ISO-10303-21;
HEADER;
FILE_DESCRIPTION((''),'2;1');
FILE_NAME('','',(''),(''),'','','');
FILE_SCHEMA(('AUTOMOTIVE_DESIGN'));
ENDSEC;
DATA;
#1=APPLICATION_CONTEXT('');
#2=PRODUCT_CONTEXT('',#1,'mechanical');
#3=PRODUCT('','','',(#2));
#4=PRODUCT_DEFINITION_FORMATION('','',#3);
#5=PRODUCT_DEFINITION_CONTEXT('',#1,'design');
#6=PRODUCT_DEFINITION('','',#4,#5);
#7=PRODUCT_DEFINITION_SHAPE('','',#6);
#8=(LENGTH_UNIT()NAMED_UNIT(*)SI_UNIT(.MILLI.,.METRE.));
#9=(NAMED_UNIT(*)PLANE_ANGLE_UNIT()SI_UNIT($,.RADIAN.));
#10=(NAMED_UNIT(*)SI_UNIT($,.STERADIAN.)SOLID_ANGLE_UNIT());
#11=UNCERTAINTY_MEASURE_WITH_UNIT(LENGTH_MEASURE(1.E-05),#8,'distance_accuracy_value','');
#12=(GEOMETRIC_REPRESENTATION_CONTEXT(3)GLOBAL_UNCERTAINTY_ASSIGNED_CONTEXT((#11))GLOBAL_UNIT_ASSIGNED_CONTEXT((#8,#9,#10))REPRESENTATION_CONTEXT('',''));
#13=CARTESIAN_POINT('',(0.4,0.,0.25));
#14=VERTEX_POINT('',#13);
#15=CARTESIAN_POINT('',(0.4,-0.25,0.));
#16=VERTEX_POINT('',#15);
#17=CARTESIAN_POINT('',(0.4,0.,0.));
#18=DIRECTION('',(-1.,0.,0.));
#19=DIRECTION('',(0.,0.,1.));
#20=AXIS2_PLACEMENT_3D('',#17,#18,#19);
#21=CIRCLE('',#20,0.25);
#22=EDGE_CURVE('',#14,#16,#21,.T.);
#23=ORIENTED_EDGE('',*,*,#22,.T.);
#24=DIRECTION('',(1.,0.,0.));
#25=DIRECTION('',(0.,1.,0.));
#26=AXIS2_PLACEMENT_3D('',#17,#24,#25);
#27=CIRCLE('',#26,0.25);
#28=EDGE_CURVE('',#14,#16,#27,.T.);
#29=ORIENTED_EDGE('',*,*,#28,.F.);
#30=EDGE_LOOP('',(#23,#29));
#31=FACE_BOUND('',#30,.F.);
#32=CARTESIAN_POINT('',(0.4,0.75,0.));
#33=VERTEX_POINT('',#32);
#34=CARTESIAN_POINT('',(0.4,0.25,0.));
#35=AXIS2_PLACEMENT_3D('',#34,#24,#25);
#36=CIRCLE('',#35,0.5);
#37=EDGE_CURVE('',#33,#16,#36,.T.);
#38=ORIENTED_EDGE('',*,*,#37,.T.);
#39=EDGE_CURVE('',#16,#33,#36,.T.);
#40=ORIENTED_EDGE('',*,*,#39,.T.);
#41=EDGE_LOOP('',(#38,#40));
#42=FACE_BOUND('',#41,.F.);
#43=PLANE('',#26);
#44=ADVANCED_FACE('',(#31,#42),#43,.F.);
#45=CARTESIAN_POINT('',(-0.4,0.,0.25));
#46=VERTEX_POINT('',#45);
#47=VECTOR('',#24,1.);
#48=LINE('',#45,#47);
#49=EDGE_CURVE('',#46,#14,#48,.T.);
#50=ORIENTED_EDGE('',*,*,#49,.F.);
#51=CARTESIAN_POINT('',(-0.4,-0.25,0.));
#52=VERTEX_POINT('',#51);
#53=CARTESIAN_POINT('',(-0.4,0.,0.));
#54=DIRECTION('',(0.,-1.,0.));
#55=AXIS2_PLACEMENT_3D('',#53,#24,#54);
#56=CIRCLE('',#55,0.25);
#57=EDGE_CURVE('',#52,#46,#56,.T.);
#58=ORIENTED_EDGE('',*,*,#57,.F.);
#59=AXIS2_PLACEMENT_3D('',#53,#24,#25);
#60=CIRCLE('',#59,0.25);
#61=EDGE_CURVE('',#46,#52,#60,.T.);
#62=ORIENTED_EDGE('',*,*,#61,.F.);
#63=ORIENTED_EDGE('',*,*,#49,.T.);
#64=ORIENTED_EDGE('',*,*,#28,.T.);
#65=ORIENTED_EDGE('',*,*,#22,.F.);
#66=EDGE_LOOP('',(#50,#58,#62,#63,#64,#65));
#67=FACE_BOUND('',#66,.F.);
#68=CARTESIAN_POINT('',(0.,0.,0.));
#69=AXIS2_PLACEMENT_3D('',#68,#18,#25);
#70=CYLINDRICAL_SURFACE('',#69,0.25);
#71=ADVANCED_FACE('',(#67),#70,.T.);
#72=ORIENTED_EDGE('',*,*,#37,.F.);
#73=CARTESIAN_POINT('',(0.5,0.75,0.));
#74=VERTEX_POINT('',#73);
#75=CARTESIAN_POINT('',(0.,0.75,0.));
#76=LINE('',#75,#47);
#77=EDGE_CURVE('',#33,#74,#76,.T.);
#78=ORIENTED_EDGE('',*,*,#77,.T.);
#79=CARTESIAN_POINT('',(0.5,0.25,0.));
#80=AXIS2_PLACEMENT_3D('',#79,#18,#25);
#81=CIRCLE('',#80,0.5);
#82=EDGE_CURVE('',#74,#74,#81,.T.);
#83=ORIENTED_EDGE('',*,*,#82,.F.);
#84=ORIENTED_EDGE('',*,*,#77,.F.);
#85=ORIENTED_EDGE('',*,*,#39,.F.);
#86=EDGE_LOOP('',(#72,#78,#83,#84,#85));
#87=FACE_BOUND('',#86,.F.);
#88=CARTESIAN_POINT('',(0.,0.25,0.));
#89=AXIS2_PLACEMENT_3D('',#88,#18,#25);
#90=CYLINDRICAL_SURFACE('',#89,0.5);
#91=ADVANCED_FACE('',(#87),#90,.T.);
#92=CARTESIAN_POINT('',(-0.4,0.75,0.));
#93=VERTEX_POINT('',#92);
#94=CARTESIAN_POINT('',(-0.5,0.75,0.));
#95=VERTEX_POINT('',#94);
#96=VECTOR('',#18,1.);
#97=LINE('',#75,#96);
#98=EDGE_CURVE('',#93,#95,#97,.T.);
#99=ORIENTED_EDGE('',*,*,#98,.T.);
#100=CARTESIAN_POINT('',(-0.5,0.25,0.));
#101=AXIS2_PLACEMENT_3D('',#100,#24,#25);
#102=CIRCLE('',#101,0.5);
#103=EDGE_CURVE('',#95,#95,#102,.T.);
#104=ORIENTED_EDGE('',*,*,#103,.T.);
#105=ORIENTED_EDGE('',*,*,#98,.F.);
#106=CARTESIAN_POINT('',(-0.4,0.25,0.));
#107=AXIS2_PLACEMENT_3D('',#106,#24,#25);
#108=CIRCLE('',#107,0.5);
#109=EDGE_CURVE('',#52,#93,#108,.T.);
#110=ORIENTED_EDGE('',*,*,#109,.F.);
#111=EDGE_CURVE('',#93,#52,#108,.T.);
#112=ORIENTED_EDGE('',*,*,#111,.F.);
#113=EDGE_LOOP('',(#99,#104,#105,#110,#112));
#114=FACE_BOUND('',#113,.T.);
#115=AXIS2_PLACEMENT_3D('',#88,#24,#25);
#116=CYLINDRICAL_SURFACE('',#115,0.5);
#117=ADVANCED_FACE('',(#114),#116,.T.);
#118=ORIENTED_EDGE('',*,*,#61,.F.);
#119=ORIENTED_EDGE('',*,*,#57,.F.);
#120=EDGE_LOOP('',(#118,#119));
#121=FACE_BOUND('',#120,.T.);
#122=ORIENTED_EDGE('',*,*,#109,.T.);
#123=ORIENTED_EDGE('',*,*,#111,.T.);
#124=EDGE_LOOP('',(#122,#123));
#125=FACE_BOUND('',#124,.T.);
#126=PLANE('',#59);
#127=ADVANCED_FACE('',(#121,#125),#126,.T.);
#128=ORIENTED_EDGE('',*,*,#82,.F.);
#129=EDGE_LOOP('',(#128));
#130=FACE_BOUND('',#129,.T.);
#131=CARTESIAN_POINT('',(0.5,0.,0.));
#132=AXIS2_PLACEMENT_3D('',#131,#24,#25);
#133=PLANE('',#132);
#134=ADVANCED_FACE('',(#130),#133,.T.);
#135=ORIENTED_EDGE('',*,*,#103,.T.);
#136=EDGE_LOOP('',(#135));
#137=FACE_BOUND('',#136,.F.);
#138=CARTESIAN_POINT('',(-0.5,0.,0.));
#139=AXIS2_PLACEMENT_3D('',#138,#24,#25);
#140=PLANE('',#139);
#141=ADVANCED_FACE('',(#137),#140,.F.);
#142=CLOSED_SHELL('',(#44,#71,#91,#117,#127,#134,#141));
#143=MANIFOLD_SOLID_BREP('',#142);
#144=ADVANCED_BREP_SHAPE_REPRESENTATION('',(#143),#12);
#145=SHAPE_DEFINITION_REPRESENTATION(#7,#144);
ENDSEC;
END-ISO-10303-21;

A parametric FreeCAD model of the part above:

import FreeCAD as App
import Part
import Sketcher
Q = App.Units.Quantity

doc = App.newDocument("Part")
params = doc.addObject("Spreadsheet::Sheet", "Params")
for row, (alias, value) in enumerate([
    ("sketch1_diameter", "1 mm"),
    ("pad1_length", "1 mm"),
    ("sketch2_diameter", "1 mm"),
    ("sketch2_diameter2", "0.5 mm"),
    ("pocket1_length", "0.8 mm"),
], start=1):
    params.set(f"A{row}", alias)
    params.set(f"B{row}", "=" + value)
    params.setAlias(f"B{row}", alias)

body = doc.addObject("PartDesign::Body", "Body")

sketch1 = body.newObject("Sketcher::SketchObject", "Sketch")
sketch1.AttachmentSupport = (doc.getObject("YZ_Plane"), [""])
sketch1.MapMode = "FlatFace"
sketch1.addGeometry(Part.Circle(App.Vector(0.25, 0, 0), App.Vector(0, 0, 1), 0.5), False)
sketch1.addConstraint(Sketcher.Constraint("PointOnObject", 0, 3, -1))
sketch1.addConstraint(Sketcher.Constraint("Diameter", 0, Q("1 mm")))
sketch1.addConstraint(Sketcher.Constraint("DistanceX", -1, 1, 0, 3, Q("0.25 mm")))
sketch1.setExpression("Constraints[1]", "Params.sketch1_diameter")
pad1 = body.newObject("PartDesign::Pad", "Pad")
pad1.Profile = sketch1
pad1.setExpression("Length", "Params.pad1_length")
pad1.Midplane = True

sketch2 = body.newObject("Sketcher::SketchObject", "Sketch001")
sketch2.AttachmentSupport = (doc.getObject("YZ_Plane"), [""])
sketch2.MapMode = "FlatFace"
sketch2.addGeometry(Part.Circle(App.Vector(0.25, 0, 0), App.Vector(0, 0, 1), 0.5), False)
sketch2.addGeometry(Part.Circle(App.Vector(0, 0, 0), App.Vector(0, 0, 1), 0.25), False)
sketch2.addConstraint(Sketcher.Constraint("Coincident", 1, 3, -1, 1))
sketch2.addConstraint(Sketcher.Constraint("PointOnObject", 0, 3, -1))
sketch2.addConstraint(Sketcher.Constraint("Diameter", 0, Q("1 mm")))
sketch2.addConstraint(Sketcher.Constraint("Diameter", 1, Q("0.5 mm")))
sketch2.addConstraint(Sketcher.Constraint("DistanceX", -1, 1, 0, 3, Q("0.25 mm")))
sketch2.setExpression("Constraints[2]", "Params.sketch2_diameter")
sketch2.setExpression("Constraints[3]", "Params.sketch2_diameter2")
pocket1 = body.newObject("PartDesign::Pocket", "Pocket")
pocket1.Profile = sketch2
pocket1.setExpression("Length", "Params.pocket1_length")
pocket1.Midplane = True

doc.recompute()
